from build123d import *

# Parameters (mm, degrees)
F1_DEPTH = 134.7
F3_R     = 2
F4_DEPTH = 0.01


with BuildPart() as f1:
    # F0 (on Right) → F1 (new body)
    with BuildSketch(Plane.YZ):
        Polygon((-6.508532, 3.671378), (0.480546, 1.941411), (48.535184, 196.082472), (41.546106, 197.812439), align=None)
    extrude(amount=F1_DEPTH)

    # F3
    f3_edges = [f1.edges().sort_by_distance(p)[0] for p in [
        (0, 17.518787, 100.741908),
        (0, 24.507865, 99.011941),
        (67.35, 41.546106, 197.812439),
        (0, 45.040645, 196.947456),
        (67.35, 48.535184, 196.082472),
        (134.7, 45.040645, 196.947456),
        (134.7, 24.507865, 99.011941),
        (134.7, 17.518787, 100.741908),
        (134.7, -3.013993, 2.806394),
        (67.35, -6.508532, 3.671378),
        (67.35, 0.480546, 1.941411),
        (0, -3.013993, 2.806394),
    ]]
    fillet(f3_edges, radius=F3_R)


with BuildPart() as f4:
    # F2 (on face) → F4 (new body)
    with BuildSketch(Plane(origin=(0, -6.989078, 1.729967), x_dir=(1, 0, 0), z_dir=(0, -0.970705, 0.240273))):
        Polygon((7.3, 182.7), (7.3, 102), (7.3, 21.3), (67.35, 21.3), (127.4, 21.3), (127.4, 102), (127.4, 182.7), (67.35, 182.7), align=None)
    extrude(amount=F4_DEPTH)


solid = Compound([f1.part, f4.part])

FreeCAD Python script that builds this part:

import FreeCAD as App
import Part
import Sketcher

V = App.Vector


def add_polygon(sketch, points):
    """Adds a closed chain of lines whose ends are joined by coincident constraints."""
    first, n = sketch.GeometryCount, len(points)
    for a, b in zip(points, points[1:] + points[:1]):
        sketch.addGeometry(Part.LineSegment(App.Vector(*a, 0), App.Vector(*b, 0)), False)
    for i in range(n):
        sketch.addConstraint(Sketcher.Constraint("Coincident", first + i, 2, first + (i + 1) % n, 1))

doc = App.newDocument("Part")
params = doc.addObject("Spreadsheet::Sheet", "Params")
for row, (alias, value) in enumerate([
    ("sketch1_length", "199.999999 mm"),
    ("sketch1_length2", "7.2 mm"),
    ("pad1_length", "134.7 mm"),
    ("fillet_radius", "2 mm"),
    ("sketch2_width", "120.1 mm"),
    ("sketch2_height", "161.4 mm"),
    ("pad2_length", "0.01 mm"),
], start=1):
    params.set(f"A{row}", alias)
    params.set(f"B{row}", "=" + value)
    params.setAlias(f"B{row}", alias)

body = doc.addObject("PartDesign::Body", "Body")

sketch1 = body.newObject("Sketcher::SketchObject", "Sketch")
sketch1.AttachmentSupport = (doc.getObject("YZ_Plane"), [""])
sketch1.MapMode = "FlatFace"
add_polygon(sketch1, [(-7, 4), (0, 2), (49, 196), (42, 198)])
sketch1.addConstraint(Sketcher.Constraint("Perpendicular", 0, 1))
sketch1.addConstraint(Sketcher.Constraint("Perpendicular", 1, 2))
sketch1.addConstraint(Sketcher.Constraint("Perpendicular", 2, 3))
sketch1.addConstraint(Sketcher.Constraint("Distance", 1, 199.999999))
sketch1.addConstraint(Sketcher.Constraint("Distance", 0, 7.2))
sketch1.addConstraint(Sketcher.Constraint("DistanceY", -1, 1, 0, 2, 1.941411))
sketch1.addConstraint(Sketcher.Constraint("DistanceY", -1, 1, 1, 2, 196.082472))
sketch1.addConstraint(Sketcher.Constraint("DistanceX", 3, 2, -1, 1, 6.508532))
sketch1.setExpression("Constraints[7]", "Params.sketch1_length")
sketch1.setExpression("Constraints[8]", "Params.sketch1_length2")
pad1 = body.newObject("PartDesign::Pad", "Pad")
pad1.Profile = sketch1
pad1.setExpression("Length", "Params.pad1_length")
doc.recompute()

fillet = body.newObject("PartDesign::Fillet", "Fillet")
fillet.Base = (pad1, ["Edge1"])
fillet.UseAllEdges = True
fillet.setExpression("Radius", "Params.fillet_radius")
body2 = doc.addObject("PartDesign::Body", "Body001")

sketch2 = body2.newObject("Sketcher::SketchObject", "Sketch001")
sketch2.Placement = App.Placement(V(0, -6.989078, 1.729967), App.Rotation(V(1, 0, 0), V(0, 0.240273083, 0.970705334), V(0, -0.970705334, 0.240273083), "ZXY"))
add_polygon(sketch2, [(7, 183), (7, 21), (127, 21), (127, 183)])
sketch2.addConstraint(Sketcher.Constraint("Vertical", 0))
sketch2.addConstraint(Sketcher.Constraint("Horizontal", 1))
sketch2.addConstraint(Sketcher.Constraint("Vertical", 2))
sketch2.addConstraint(Sketcher.Constraint("Horizontal", 3))
sketch2.addConstraint(Sketcher.Constraint("DistanceX", 1, 1, 1, 2, 120.1))
sketch2.addConstraint(Sketcher.Constraint("DistanceY", 0, 2, 0, 1, 161.4))
sketch2.addConstraint(Sketcher.Constraint("DistanceX", -1, 1, 0, 2, 7.3))
sketch2.addConstraint(Sketcher.Constraint("DistanceY", -1, 1, 0, 2, 21.3))
sketch2.setExpression("Constraints[8]", "Params.sketch2_width")
sketch2.setExpression("Constraints[9]", "Params.sketch2_height")
pad2 = body2.newObject("PartDesign::Pad", "Pad001")
pad2.Profile = sketch2
pad2.setExpression("Length", "Params.pad2_length")

doc.recompute()
